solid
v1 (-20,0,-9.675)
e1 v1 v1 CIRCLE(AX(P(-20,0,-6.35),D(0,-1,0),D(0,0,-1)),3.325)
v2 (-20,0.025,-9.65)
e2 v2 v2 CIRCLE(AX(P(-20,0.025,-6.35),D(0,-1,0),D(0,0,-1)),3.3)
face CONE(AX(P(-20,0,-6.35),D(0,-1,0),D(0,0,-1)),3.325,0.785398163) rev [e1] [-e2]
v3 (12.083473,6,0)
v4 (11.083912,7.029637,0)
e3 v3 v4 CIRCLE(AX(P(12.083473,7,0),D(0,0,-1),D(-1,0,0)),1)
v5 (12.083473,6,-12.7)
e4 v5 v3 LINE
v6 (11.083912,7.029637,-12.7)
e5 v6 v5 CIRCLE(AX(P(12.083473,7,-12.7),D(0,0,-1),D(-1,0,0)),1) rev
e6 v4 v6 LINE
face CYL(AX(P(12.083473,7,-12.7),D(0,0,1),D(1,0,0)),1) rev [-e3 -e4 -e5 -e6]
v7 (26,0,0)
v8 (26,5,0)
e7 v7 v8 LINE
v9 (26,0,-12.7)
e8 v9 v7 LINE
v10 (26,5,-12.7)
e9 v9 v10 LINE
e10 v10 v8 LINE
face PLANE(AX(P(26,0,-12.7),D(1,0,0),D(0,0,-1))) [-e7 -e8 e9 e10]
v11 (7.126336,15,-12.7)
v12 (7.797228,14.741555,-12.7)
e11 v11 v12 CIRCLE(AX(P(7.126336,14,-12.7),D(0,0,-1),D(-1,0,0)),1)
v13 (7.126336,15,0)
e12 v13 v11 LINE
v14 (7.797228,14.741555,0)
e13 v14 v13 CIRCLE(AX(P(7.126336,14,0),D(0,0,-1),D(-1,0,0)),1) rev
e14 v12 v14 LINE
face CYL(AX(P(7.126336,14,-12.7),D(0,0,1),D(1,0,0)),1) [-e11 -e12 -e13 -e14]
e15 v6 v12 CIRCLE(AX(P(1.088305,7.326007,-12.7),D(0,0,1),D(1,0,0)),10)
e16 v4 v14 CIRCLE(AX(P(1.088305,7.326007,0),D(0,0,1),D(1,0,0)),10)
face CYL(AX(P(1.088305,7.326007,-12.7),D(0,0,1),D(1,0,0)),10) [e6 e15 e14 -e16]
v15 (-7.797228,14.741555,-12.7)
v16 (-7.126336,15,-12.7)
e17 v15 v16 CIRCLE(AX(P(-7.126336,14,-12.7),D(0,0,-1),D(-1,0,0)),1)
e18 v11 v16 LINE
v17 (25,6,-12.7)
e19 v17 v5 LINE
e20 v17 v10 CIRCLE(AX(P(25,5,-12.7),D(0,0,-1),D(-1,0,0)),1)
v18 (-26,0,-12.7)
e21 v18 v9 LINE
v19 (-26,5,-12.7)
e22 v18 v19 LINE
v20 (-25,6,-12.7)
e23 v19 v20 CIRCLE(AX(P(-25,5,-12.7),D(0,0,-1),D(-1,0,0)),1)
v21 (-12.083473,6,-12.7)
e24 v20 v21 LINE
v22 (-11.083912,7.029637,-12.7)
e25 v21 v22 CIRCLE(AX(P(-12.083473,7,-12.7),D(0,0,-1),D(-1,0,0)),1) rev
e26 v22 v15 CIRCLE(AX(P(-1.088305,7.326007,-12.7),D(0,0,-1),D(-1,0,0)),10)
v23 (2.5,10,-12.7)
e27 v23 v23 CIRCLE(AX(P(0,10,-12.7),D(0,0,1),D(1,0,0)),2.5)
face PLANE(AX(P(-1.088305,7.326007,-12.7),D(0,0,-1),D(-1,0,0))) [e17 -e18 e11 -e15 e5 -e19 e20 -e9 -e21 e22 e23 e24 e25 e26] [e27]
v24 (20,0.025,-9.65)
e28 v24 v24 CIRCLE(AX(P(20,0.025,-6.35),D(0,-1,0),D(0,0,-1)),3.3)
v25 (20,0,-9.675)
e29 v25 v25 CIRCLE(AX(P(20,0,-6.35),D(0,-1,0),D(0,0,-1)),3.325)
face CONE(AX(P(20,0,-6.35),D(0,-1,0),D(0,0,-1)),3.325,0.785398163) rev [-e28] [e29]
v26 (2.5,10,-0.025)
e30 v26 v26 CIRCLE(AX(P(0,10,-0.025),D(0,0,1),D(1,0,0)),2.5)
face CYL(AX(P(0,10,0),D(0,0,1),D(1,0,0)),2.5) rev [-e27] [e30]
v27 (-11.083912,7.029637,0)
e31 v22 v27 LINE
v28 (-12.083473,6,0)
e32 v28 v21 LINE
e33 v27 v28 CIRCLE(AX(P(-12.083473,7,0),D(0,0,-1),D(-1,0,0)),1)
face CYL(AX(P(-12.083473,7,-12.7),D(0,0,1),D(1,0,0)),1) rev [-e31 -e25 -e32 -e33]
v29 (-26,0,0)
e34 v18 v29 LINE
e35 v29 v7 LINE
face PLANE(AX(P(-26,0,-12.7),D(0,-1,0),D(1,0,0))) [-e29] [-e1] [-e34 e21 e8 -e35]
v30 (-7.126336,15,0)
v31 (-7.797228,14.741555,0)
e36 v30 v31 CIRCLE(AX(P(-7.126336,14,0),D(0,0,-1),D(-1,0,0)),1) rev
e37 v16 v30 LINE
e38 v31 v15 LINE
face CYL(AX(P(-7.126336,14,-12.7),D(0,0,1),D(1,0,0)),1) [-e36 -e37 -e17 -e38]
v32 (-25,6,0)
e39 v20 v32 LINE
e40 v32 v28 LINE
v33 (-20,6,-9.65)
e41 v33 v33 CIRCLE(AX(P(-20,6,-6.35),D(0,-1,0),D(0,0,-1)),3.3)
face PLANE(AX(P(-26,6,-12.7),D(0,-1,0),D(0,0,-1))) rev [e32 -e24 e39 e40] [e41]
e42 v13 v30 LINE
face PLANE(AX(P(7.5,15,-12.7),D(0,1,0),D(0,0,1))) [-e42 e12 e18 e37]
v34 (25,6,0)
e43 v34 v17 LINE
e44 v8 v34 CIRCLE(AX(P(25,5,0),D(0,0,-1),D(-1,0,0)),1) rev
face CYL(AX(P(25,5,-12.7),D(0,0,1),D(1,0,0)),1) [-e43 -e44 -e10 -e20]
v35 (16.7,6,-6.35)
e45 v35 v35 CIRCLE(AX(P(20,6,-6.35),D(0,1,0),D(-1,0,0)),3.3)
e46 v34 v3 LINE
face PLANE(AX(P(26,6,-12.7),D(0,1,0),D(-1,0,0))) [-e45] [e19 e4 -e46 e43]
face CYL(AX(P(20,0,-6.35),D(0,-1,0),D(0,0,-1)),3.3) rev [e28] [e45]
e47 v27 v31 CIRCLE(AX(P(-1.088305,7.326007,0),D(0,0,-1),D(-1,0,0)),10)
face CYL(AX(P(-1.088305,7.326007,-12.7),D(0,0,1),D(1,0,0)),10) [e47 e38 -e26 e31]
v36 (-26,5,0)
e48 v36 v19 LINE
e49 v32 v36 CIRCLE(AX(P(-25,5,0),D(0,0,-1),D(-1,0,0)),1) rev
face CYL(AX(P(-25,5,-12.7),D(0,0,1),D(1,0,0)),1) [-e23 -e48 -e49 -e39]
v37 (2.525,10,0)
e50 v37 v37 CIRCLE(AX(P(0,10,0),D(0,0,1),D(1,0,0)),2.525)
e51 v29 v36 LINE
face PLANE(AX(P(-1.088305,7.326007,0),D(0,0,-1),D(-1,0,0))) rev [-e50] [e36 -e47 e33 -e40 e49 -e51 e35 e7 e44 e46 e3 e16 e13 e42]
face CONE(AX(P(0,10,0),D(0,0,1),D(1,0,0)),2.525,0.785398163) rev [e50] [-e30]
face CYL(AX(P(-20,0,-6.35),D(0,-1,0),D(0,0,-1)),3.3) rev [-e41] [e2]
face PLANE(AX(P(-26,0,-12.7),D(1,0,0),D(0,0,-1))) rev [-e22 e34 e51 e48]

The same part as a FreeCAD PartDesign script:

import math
import FreeCAD as App
import Part
import Sketcher
Q = App.Units.Quantity


def edges_at(feature, points):
    """Names of the edges that pass closest to the given points."""
    edges = feature.Shape.Edges
    near = lambda p: min(range(len(edges)), key=lambda i: edges[i].distToShape(Part.Vertex(*p))[0])
    return sorted({f"Edge{near(p) + 1}" for p in points})

doc = App.newDocument("Part")
params = doc.addObject("Spreadsheet::Sheet", "Params")
for row, (alias, value) in enumerate([
    ("sketch1_radius", "10 mm"),
    ("sketch1_width", "52 mm"),
    ("sketch1_width2", "15 mm"),
    ("sketch1_height", "6 mm"),
    ("pad1_length", "12.7 mm"),
    ("sketch2_diameter", "5 mm"),
    ("hole_diameter", "5 mm"),
    ("hole_csink_diameter", "5.05 mm"),
    ("sketch3_diameter", "6.6 mm"),
    ("hole2_diameter", "6.6 mm"),
    ("hole2_csink_diameter", "6.65 mm"),
    ("fillet_radius", "1 mm"),
], start=1):
    params.set(f"A{row}", alias)
    params.set(f"B{row}", "=" + value)
    params.setAlias(f"B{row}", alias)

body = doc.addObject("PartDesign::Body", "Body")

sketch1 = body.newObject("Sketcher::SketchObject", "Sketch")
sketch1.AttachmentSupport = (doc.getObject("XY_Plane"), [""])
sketch1.MapMode = "FlatFace"
sketch1.addGeometry([
    Part.LineSegment(App.Vector(-26, 0, 0), App.Vector(26, 0, 0)),
    Part.LineSegment(App.Vector(26, 0, 0), App.Vector(26, 6, 0)),
    Part.LineSegment(App.Vector(26, 6, 0), App.Vector(11, 6, 0)),
    Part.ArcOfCircle(Part.Circle(App.Vector(1, 7, 0), App.Vector(0, 0, 1), 10), math.radians(-8), math.radians(50)),
    Part.LineSegment(App.Vector(8, 15, 0), App.Vector(-8, 15, 0)),
    Part.ArcOfCircle(Part.Circle(App.Vector(-1, 7, 0), App.Vector(0, 0, 1), 10), math.radians(130), math.radians(188)),
    Part.LineSegment(App.Vector(-11, 6, 0), App.Vector(-26, 6, 0)),
    Part.LineSegment(App.Vector(-26, 6, 0), App.Vector(-26, 0, 0)),
], False)
sketch1.addConstraint([
    Sketcher.Constraint("Coincident", 0, 2, 1, 1),
    Sketcher.Constraint("Coincident", 1, 2, 2, 1),
    Sketcher.Constraint("Coincident", 2, 2, 3, 1),
    Sketcher.Constraint("Coincident", 3, 2, 4, 1),
    Sketcher.Constraint("Coincident", 4, 2, 5, 1),
    Sketcher.Constraint("Coincident", 5, 2, 6, 1),
    Sketcher.Constraint("Coincident", 6, 2, 7, 1),
    Sketcher.Constraint("Coincident", 7, 2, 0, 1),
    Sketcher.Constraint("Horizontal", 0),
    Sketcher.Constraint("Vertical", 1),
    Sketcher.Constraint("Horizontal", 2),
    Sketcher.Constraint("Horizontal", 4),
    Sketcher.Constraint("Horizontal", 6),
    Sketcher.Constraint("Vertical", 7),
    Sketcher.Constraint("Equal", 3, 5),
    Sketcher.Constraint("Symmetric", 0, 2, 7, 2, -1, 1),
    Sketcher.Constraint("Symmetric", 3, 3, 5, 3, -2),
    Sketcher.Constraint("Horizontal", 2, 2, 5, 2),
    Sketcher.Constraint("Equal", 2, 4),
    Sketcher.Constraint("Radius", 3, Q("10 mm")),
    Sketcher.Constraint("DistanceX", 0, 1, 0, 2, Q("52 mm")),
    Sketcher.Constraint("DistanceX", 2, 2, 2, 1, Q("15 mm")),
    Sketcher.Constraint("DistanceY", 1, 1, 1, 2, Q("6 mm")),
    Sketcher.Constraint("DistanceY", -1, 1, 3, 2, Q("15 mm")),
])
sketch1.setExpression("Constraints[19]", "Params.sketch1_radius")
sketch1.setExpression("Constraints[20]", "Params.sketch1_width")
sketch1.setExpression("Constraints[21]", "Params.sketch1_width2")
sketch1.setExpression("Constraints[22]", "Params.sketch1_height")
pad1 = body.newObject("PartDesign::Pad", "Pad")
pad1.Profile = sketch1
pad1.setExpression("Length", "Params.pad1_length")
pad1.Reversed = True

sketch2 = body.newObject("Sketcher::SketchObject", "Sketch001")
sketch2.AttachmentSupport = (doc.getObject("XY_Plane"), [""])
sketch2.MapMode = "FlatFace"
sketch2.addGeometry(Part.Circle(App.Vector(0, 10, 0), App.Vector(0, 0, 1), 2.5), False)
sketch2.addConstraint([
    Sketcher.Constraint("PointOnObject", 0, 3, -2),
    Sketcher.Constraint("Diameter", 0, Q("5 mm")),
    Sketcher.Constraint("DistanceY", -1, 1, 0, 3, Q("10 mm")),
])
sketch2.setExpression("Constraints[1]", "Params.sketch2_diameter")
doc.recompute()
hole = body.newObject("PartDesign::Hole", "Hole")
hole.Profile = sketch2
hole.ThreadType = "None"
hole.setExpression("Diameter", "Params.hole_diameter")
hole.DepthType = "ThroughAll"
hole.HoleCutType = "Countersink"
hole.setExpression("HoleCutDiameter", "Params.hole_csink_diameter")
hole.HoleCutCountersinkAngle = 90

sketch3 = body.newObject("Sketcher::SketchObject", "Sketch002")
sketch3.AttachmentSupport = (doc.getObject("XZ_Plane"), [""])
sketch3.MapMode = "FlatFace"
sketch3.addGeometry([
    Part.Circle(App.Vector(-20, -6.3, 0), App.Vector(0, 0, 1), 3.3),
    Part.Circle(App.Vector(20, -6.3, 0), App.Vector(0, 0, 1), 3.3),
], False)
sketch3.addConstraint([
    Sketcher.Constraint("Equal", 0, 1),
    Sketcher.Constraint("Symmetric", 0, 3, 1, 3, -2),
    Sketcher.Constraint("Diameter", 0, Q("6.6 mm")),
    Sketcher.Constraint("DistanceX", 0, 3, -1, 1, Q("20 mm")),
    Sketcher.Constraint("DistanceY", 0, 3, -1, 1, Q("6.35 mm")),
])
sketch3.setExpression("Constraints[2]", "Params.sketch3_diameter")
doc.recompute()
hole2 = body.newObject("PartDesign::Hole", "Hole001")
hole2.Profile = sketch3
hole2.ThreadType = "None"
hole2.setExpression("Diameter", "Params.hole2_diameter")
hole2.DepthType = "ThroughAll"
hole2.HoleCutType = "Countersink"
hole2.setExpression("HoleCutDiameter", "Params.hole2_csink_diameter")
hole2.HoleCutCountersinkAngle = 90
doc.recompute()

fillet = body.newObject("PartDesign::Fillet", "Fillet")
fillet.Base = (hole2, edges_at(hole2, [
    (-26, 6, -6.35),
    (26, 6, -6.35),
    (11, 6, -6.35),
    (7.5, 15, -6.35),
    (-7.5, 15, -6.35),
    (-11, 6, -6.35),
]))
fillet.setExpression("Radius", "Params.fillet_radius")

doc.recompute()
